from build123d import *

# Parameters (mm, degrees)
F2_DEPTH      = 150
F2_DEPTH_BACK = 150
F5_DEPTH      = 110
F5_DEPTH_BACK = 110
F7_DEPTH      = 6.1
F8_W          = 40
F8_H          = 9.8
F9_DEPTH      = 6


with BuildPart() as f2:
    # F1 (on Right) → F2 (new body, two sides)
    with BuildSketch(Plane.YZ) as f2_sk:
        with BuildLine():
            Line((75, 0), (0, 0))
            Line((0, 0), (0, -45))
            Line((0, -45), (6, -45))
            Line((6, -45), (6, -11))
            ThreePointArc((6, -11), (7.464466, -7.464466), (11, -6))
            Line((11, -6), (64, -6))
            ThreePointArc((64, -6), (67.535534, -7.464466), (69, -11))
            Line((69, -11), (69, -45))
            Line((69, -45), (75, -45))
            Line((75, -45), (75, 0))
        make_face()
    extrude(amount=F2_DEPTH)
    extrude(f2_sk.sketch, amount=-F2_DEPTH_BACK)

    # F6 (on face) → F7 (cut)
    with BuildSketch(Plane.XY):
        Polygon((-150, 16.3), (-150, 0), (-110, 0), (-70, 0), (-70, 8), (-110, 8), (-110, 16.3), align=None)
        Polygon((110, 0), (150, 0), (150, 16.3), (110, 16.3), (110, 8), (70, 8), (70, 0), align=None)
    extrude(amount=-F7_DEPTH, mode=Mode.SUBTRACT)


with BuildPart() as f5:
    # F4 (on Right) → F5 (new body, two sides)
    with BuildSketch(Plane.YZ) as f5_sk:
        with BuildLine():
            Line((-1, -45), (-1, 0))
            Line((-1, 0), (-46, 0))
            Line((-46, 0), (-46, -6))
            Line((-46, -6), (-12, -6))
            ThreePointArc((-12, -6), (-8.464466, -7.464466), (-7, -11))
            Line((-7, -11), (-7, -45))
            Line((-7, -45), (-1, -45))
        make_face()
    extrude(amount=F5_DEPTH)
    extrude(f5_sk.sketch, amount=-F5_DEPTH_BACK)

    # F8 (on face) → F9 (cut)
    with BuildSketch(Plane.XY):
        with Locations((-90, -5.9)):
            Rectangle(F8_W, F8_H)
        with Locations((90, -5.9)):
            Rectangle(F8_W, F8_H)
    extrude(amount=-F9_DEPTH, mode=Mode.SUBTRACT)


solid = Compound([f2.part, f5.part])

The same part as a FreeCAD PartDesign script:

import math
import FreeCAD as App
import Part
import Sketcher

V = App.Vector
Q = App.Units.Quantity

doc = App.newDocument("Part")
body = doc.addObject("PartDesign::Body", "Body")

# Sketch on YZ plane
sketch1 = body.newObject("Sketcher::SketchObject", "Sketch")
sketch1.AttachmentSupport = (doc.getObject("YZ_Plane"), [""])
sketch1.MapMode = "FlatFace"
sketch1.addGeometry(Part.LineSegment(V(75, 0, 0), V(0, 0, 0)), False)
sketch1.addGeometry(Part.LineSegment(V(0, 0, 0), V(0, -45, 0)), False)
sketch1.addGeometry(Part.LineSegment(V(0, -45, 0), V(6, -45, 0)), False)
sketch1.addGeometry(Part.LineSegment(V(6, -45, 0), V(6, -11, 0)), False)
sketch1.addGeometry(Part.ArcOfCircle(Part.Circle(V(11, -11, 0), V(0, 0, 1), 5), math.radians(90), math.radians(180)), False)
sketch1.addGeometry(Part.LineSegment(V(11, -6, 0), V(64, -6, 0)), False)
sketch1.addGeometry(Part.ArcOfCircle(Part.Circle(V(64, -11, 0), V(0, 0, 1), 5), math.radians(0), math.radians(90)), False)
sketch1.addGeometry(Part.LineSegment(V(69, -11, 0), V(69, -45, 0)), False)
sketch1.addGeometry(Part.LineSegment(V(69, -45, 0), V(75, -45, 0)), False)
sketch1.addGeometry(Part.LineSegment(V(75, -45, 0), V(75, 0, 0)), False)
sketch1.addConstraint(Sketcher.Constraint("Coincident", 0, 2, 1, 1))
sketch1.addConstraint(Sketcher.Constraint("Coincident", 1, 2, 2, 1))
sketch1.addConstraint(Sketcher.Constraint("Coincident", 2, 2, 3, 1))
sketch1.addConstraint(Sketcher.Constraint("Tangent", 3, 2, 4, 2))
sketch1.addConstraint(Sketcher.Constraint("Tangent", 4, 1, 5, 1))
sketch1.addConstraint(Sketcher.Constraint("Tangent", 5, 2, 6, 2))
sketch1.addConstraint(Sketcher.Constraint("Tangent", 6, 1, 7, 1))
sketch1.addConstraint(Sketcher.Constraint("Coincident", 7, 2, 8, 1))
sketch1.addConstraint(Sketcher.Constraint("Coincident", 8, 2, 9, 1))
sketch1.addConstraint(Sketcher.Constraint("Coincident", 9, 2, 0, 1))
sketch1.addConstraint(Sketcher.Constraint("Horizontal", 0))
sketch1.addConstraint(Sketcher.Constraint("Vertical", 1))
sketch1.addConstraint(Sketcher.Constraint("Horizontal", 2))
sketch1.addConstraint(Sketcher.Constraint("Vertical", 3))
sketch1.addConstraint(Sketcher.Constraint("Horizontal", 5))
sketch1.addConstraint(Sketcher.Constraint("Vertical", 7))
sketch1.addConstraint(Sketcher.Constraint("Horizontal", 8))
sketch1.addConstraint(Sketcher.Constraint("Vertical", 9))
sketch1.addConstraint(Sketcher.Constraint("Coincident", 0, 2, -1, 1))
sketch1.addConstraint(Sketcher.Constraint("Equal", 4, 6))
sketch1.addConstraint(Sketcher.Constraint("Horizontal", 2, 2, 7, 2))
sketch1.addConstraint(Sketcher.Constraint("Equal", 2, 8))
sketch1.addConstraint(Sketcher.Constraint("Radius", 4, Q("5 mm")))
sketch1.addConstraint(Sketcher.Constraint("DistanceX", 0, 2, 0, 1, Q("75 mm")))
sketch1.addConstraint(Sketcher.Constraint("DistanceX", 2, 1, 2, 2, Q("6 mm")))
sketch1.addConstraint(Sketcher.Constraint("DistanceY", 1, 2, 1, 1, Q("45 mm")))
sketch1.addConstraint(Sketcher.Constraint("DistanceY", 3, 1, 3, 2, Q("34 mm")))
pad1 = body.newObject("PartDesign::Pad", "Pad")
pad1.Profile = sketch1
pad1.Type = "TwoLengths"
pad1.Length = 150
pad1.Length2 = 150

# Sketch on XY plane
sketch2 = body.newObject("Sketcher::SketchObject", "Sketch001")
sketch2.AttachmentSupport = (doc.getObject("XY_Plane"), [""])
sketch2.MapMode = "FlatFace"
sketch2.addGeometry(Part.LineSegment(V(-150, 16, 0), V(-150, 0, 0)), False)
sketch2.addGeometry(Part.LineSegment(V(-150, 0, 0), V(-70, 0, 0)), False)
sketch2.addGeometry(Part.LineSegment(V(-70, 0, 0), V(-70, 8, 0)), False)
sketch2.addGeometry(Part.LineSegment(V(-70, 8, 0), V(-110, 8, 0)), False)
sketch2.addGeometry(Part.LineSegment(V(-110, 8, 0), V(-110, 16, 0)), False)
sketch2.addGeometry(Part.LineSegment(V(-110, 16, 0), V(-150, 16, 0)), False)
sketch2.addGeometry(Part.LineSegment(V(150, 0, 0), V(150, 16, 0)), False)
sketch2.addGeometry(Part.LineSegment(V(150, 16, 0), V(110, 16, 0)), False)
sketch2.addGeometry(Part.LineSegment(V(110, 16, 0), V(110, 8, 0)), False)
sketch2.addGeometry(Part.LineSegment(V(110, 8, 0), V(70, 8, 0)), False)
sketch2.addGeometry(Part.LineSegment(V(70, 8, 0), V(70, 0, 0)), False)
sketch2.addGeometry(Part.LineSegment(V(70, 0, 0), V(150, 0, 0)), False)
sketch2.addConstraint(Sketcher.Constraint("Coincident", 0, 2, 1, 1))
sketch2.addConstraint(Sketcher.Constraint("Coincident", 1, 2, 2, 1))
sketch2.addConstraint(Sketcher.Constraint("Coincident", 2, 2, 3, 1))
sketch2.addConstraint(Sketcher.Constraint("Coincident", 3, 2, 4, 1))
sketch2.addConstraint(Sketcher.Constraint("Coincident", 4, 2, 5, 1))
sketch2.addConstraint(Sketcher.Constraint("Coincident", 5, 2, 0, 1))
sketch2.addConstraint(Sketcher.Constraint("Coincident", 6, 2, 7, 1))
sketch2.addConstraint(Sketcher.Constraint("Coincident", 7, 2, 8, 1))
sketch2.addConstraint(Sketcher.Constraint("Coincident", 8, 2, 9, 1))
sketch2.addConstraint(Sketcher.Constraint("Coincident", 9, 2, 10, 1))
sketch2.addConstraint(Sketcher.Constraint("Coincident", 10, 2, 11, 1))
sketch2.addConstraint(Sketcher.Constraint("Coincident", 11, 2, 6, 1))
sketch2.addConstraint(Sketcher.Constraint("Vertical", 0))
sketch2.addConstraint(Sketcher.Constraint("Horizontal", 1))
sketch2.addConstraint(Sketcher.Constraint("Vertical", 2))
sketch2.addConstraint(Sketcher.Constraint("Horizontal", 3))
sketch2.addConstraint(Sketcher.Constraint("Vertical", 4))
sketch2.addConstraint(Sketcher.Constraint("Horizontal", 5))
sketch2.addConstraint(Sketcher.Constraint("Vertical", 6))
sketch2.addConstraint(Sketcher.Constraint("Horizontal", 7))
sketch2.addConstraint(Sketcher.Constraint("Vertical", 8))
sketch2.addConstraint(Sketcher.Constraint("Horizontal", 9))
sketch2.addConstraint(Sketcher.Constraint("Vertical", 10))
sketch2.addConstraint(Sketcher.Constraint("Horizontal", 11))
sketch2.addConstraint(Sketcher.Constraint("Symmetric", 1, 2, 10, 2, -1, 1))
sketch2.addConstraint(Sketcher.Constraint("Symmetric", 5, 2, 6, 2, -2))
sketch2.addConstraint(Sketcher.Constraint("Symmetric", 3, 2, 8, 2, -2))
sketch2.addConstraint(Sketcher.Constraint("PointOnObject", 0, 2, -1))
sketch2.addConstraint(Sketcher.Constraint("Equal", 3, 5))
sketch2.addConstraint(Sketcher.Constraint("DistanceX", 1, 1, 1, 2, Q("80 mm")))
sketch2.addConstraint(Sketcher.Constraint("DistanceY", 2, 1, 2, 2, Q("8 mm")))
sketch2.addConstraint(Sketcher.Constraint("DistanceY", 0, 2, 0, 1, Q("16.3 mm")))
sketch2.addConstraint(Sketcher.Constraint("DistanceX", 0, 2, -1, 1, Q("150 mm")))
pocket1 = body.newObject("PartDesign::Pocket", "Pocket")
pocket1.Profile = sketch2
pocket1.Length = 6.1
body2 = doc.addObject("PartDesign::Body", "Body001")

# Sketch on YZ plane
sketch3 = body2.newObject("Sketcher::SketchObject", "Sketch002")
sketch3.AttachmentSupport = (doc.getObject("YZ_Plane001"), [""])
sketch3.MapMode = "FlatFace"
sketch3.addGeometry(Part.LineSegment(V(-1, -45, 0), V(-1, 0, 0)), False)
sketch3.addGeometry(Part.LineSegment(V(-1, 0, 0), V(-46, 0, 0)), False)
sketch3.addGeometry(Part.LineSegment(V(-46, 0, 0), V(-46, -6, 0)), False)
sketch3.addGeometry(Part.LineSegment(V(-46, -6, 0), V(-12, -6, 0)), False)
sketch3.addGeometry(Part.ArcOfCircle(Part.Circle(V(-12, -11, 0), V(0, 0, 1), 5), math.radians(0), math.radians(90)), False)
sketch3.addGeometry(Part.LineSegment(V(-7, -11, 0), V(-7, -45, 0)), False)
sketch3.addGeometry(Part.LineSegment(V(-7, -45, 0), V(-1, -45, 0)), False)
sketch3.addConstraint(Sketcher.Constraint("Coincident", 0, 2, 1, 1))
sketch3.addConstraint(Sketcher.Constraint("Coincident", 1, 2, 2, 1))
sketch3.addConstraint(Sketcher.Constraint("Coincident", 2, 2, 3, 1))
sketch3.addConstraint(Sketcher.Constraint("Tangent", 3, 2, 4, 2))
sketch3.addConstraint(Sketcher.Constraint("Tangent", 4, 1, 5, 1))
sketch3.addConstraint(Sketcher.Constraint("Coincident", 5, 2, 6, 1))
sketch3.addConstraint(Sketcher.Constraint("Coincident", 6, 2, 0, 1))
sketch3.addConstraint(Sketcher.Constraint("Vertical", 0))
sketch3.addConstraint(Sketcher.Constraint("Horizontal", 1))
sketch3.addConstraint(Sketcher.Constraint("Vertical", 2))
sketch3.addConstraint(Sketcher.Constraint("Horizontal", 3))
sketch3.addConstraint(Sketcher.Constraint("Vertical", 5))
sketch3.addConstraint(Sketcher.Constraint("Horizontal", 6))
sketch3.addConstraint(Sketcher.Constraint("PointOnObject", 0, 2, -1))
sketch3.addConstraint(Sketcher.Constraint("Equal", 1, 0))
sketch3.addConstraint(Sketcher.Constraint("Equal", 6, 2))
sketch3.addConstraint(Sketcher.Constraint("Radius", 4, Q("5 mm")))
sketch3.addConstraint(Sketcher.Constraint("DistanceX", 1, 2, 1, 1, Q("45 mm")))
sketch3.addConstraint(Sketcher.Constraint("DistanceX", 3, 1, 3, 2, Q("34 mm")))
sketch3.addConstraint(Sketcher.Constraint("DistanceX", 4, 3, -1, 1, Q("12 mm")))
pad2 = body2.newObject("PartDesign::Pad", "Pad001")
pad2.Profile = sketch3
pad2.Type = "TwoLengths"
pad2.Length = 110
pad2.Length2 = 110

# Sketch on XY plane
sketch4 = body2.newObject("Sketcher::SketchObject", "Sketch003")
sketch4.AttachmentSupport = (doc.getObject("XY_Plane001"), [""])
sketch4.MapMode = "FlatFace"
sketch4.addGeometry(Part.LineSegment(V(-110, -1, 0), V(-110, -11, 0)), False)
sketch4.addGeometry(Part.LineSegment(V(-110, -11, 0), V(-70, -11, 0)), False)
sketch4.addGeometry(Part.LineSegment(V(-70, -11, 0), V(-70, -1, 0)), False)
sketch4.addGeometry(Part.LineSegment(V(-70, -1, 0), V(-110, -1, 0)), False)
sketch4.addGeometry(Part.LineSegment(V(70, -1, 0), V(70, -11, 0)), False)
sketch4.addGeometry(Part.LineSegment(V(70, -11, 0), V(110, -11, 0)), False)
sketch4.addGeometry(Part.LineSegment(V(110, -11, 0), V(110, -1, 0)), False)
sketch4.addGeometry(Part.LineSegment(V(110, -1, 0), V(70, -1, 0)), False)
sketch4.addConstraint(Sketcher.Constraint("Coincident", 0, 2, 1, 1))
sketch4.addConstraint(Sketcher.Constraint("Coincident", 1, 2, 2, 1))
sketch4.addConstraint(Sketcher.Constraint("Coincident", 2, 2, 3, 1))
sketch4.addConstraint(Sketcher.Constraint("Coincident", 3, 2, 0, 1))
sketch4.addConstraint(Sketcher.Constraint("Coincident", 4, 2, 5, 1))
sketch4.addConstraint(Sketcher.Constraint("Coincident", 5, 2, 6, 1))
sketch4.addConstraint(Sketcher.Constraint("Coincident", 6, 2, 7, 1))
sketch4.addConstraint(Sketcher.Constraint("Coincident", 7, 2, 4, 1))
sketch4.addConstraint(Sketcher.Constraint("Vertical", 0))
sketch4.addConstraint(Sketcher.Constraint("Horizontal", 1))
sketch4.addConstraint(Sketcher.Constraint("Vertical", 2))
sketch4.addConstraint(Sketcher.Constraint("Horizontal", 3))
sketch4.addConstraint(Sketcher.Constraint("Vertical", 4))
sketch4.addConstraint(Sketcher.Constraint("Horizontal", 5))
sketch4.addConstraint(Sketcher.Constraint("Vertical", 6))
sketch4.addConstraint(Sketcher.Constraint("Horizontal", 7))
sketch4.addConstraint(Sketcher.Constraint("Symmetric", 1, 2, 4, 2, -2))
sketch4.addConstraint(Sketcher.Constraint("Symmetric", 3, 2, 6, 2, -2))
sketch4.addConstraint(Sketcher.Constraint("DistanceX", 1, 1, 1, 2, Q("40 mm")))
sketch4.addConstraint(Sketcher.Constraint("DistanceY", 0, 2, 0, 1, Q("9.8 mm")))
sketch4.addConstraint(Sketcher.Constraint("DistanceX", 0, 2, -1, 1, Q("110 mm")))
sketch4.addConstraint(Sketcher.Constraint("DistanceY", 2, 2, -1, 1, Q("1 mm")))
pocket2 = body2.newObject("PartDesign::Pocket", "Pocket001")
pocket2.Profile = sketch4
pocket2.Length = 6

doc.recompute()
